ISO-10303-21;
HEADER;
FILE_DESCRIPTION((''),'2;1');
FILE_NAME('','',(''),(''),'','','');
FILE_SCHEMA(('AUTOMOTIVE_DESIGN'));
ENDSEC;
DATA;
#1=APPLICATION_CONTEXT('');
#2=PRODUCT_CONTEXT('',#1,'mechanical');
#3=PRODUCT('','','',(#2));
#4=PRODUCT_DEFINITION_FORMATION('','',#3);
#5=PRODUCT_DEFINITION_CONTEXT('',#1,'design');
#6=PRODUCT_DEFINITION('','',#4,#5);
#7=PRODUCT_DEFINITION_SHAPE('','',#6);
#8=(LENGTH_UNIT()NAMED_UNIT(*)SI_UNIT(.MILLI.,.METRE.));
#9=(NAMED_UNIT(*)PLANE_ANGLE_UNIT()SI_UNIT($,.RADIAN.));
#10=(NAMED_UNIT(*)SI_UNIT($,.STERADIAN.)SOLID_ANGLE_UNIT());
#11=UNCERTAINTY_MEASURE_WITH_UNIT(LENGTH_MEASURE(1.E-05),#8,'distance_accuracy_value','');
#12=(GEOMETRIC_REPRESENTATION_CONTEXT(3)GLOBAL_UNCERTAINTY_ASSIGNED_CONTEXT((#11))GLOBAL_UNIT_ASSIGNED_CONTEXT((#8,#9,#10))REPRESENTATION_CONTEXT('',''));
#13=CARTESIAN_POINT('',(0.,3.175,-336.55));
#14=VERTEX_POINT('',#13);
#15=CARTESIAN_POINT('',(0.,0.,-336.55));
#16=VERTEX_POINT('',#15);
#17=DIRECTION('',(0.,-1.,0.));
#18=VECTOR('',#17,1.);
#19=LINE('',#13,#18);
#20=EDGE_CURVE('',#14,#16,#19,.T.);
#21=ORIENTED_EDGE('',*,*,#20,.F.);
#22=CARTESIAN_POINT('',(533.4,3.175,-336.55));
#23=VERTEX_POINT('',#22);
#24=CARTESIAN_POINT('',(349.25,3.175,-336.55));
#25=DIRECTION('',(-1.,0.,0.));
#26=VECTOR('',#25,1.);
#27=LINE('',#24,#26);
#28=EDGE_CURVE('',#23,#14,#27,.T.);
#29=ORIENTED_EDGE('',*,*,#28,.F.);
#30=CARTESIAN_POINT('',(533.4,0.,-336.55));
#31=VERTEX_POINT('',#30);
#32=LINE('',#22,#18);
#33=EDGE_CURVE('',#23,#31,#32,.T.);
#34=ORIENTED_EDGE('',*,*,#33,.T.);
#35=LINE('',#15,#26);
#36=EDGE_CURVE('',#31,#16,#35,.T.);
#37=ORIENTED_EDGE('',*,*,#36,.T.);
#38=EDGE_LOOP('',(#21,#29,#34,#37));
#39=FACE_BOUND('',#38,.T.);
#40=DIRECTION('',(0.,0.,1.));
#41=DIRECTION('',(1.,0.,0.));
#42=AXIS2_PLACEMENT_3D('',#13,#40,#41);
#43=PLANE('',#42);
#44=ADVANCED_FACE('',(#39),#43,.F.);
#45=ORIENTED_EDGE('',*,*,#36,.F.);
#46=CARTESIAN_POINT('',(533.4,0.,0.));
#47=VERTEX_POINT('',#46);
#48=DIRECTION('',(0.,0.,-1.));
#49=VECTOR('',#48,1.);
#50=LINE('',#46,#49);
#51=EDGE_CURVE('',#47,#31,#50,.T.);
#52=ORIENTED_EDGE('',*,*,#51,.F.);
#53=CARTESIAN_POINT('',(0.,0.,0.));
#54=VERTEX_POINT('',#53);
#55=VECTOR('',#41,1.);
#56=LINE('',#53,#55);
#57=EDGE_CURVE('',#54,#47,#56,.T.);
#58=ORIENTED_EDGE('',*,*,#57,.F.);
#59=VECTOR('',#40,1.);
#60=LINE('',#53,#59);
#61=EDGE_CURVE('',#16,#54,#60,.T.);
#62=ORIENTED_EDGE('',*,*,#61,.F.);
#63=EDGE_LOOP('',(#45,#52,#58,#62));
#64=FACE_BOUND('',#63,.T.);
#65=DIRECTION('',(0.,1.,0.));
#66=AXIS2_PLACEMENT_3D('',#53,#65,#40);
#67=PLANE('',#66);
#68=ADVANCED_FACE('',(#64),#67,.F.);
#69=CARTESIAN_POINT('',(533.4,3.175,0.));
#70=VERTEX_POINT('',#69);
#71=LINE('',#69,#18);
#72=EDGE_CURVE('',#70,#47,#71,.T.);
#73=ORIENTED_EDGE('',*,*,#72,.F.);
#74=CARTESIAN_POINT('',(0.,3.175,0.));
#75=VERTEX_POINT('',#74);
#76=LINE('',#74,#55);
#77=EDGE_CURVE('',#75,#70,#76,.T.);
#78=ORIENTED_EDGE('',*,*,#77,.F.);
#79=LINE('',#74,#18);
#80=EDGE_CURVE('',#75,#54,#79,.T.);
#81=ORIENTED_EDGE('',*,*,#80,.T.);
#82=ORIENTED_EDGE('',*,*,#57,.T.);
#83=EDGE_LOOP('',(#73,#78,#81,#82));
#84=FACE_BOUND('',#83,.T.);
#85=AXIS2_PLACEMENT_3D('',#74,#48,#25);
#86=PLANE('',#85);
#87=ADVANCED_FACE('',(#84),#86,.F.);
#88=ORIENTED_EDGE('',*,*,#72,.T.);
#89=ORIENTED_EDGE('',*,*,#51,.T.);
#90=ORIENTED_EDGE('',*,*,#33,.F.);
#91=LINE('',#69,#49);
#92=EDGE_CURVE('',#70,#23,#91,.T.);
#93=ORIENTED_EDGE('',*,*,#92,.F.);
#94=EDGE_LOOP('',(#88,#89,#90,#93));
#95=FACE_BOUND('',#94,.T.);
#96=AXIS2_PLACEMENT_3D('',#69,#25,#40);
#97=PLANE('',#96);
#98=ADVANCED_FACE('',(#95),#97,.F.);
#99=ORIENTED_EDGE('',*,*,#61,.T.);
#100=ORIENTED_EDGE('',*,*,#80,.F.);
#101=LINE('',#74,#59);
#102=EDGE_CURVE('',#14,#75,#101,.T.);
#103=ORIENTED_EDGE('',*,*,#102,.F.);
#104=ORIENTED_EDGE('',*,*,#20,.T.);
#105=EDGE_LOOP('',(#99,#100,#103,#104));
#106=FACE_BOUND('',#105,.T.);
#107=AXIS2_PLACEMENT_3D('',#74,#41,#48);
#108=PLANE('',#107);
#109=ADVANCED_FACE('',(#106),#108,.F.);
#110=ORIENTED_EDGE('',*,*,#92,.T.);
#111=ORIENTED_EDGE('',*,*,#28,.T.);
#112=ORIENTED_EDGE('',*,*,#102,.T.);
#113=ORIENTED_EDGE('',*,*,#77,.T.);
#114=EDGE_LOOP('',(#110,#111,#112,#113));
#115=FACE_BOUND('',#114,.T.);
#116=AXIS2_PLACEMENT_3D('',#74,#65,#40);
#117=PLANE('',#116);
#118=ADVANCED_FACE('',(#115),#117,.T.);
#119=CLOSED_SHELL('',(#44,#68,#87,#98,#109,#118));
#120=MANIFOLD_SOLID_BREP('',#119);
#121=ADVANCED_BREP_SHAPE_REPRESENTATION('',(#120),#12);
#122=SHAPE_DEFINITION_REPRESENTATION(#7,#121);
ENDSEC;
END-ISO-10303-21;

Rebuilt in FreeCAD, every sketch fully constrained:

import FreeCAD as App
import Part
import Sketcher

V = App.Vector
Q = App.Units.Quantity

doc = App.newDocument("Part")
body = doc.addObject("PartDesign::Body", "Body")

sketch1 = doc.addObject("Sketcher::SketchObject", "Sketch")
body.addObject(sketch1)
sketch1.AttachmentSupport = (doc.XZ_Plane, [""])
sketch1.MapMode = "FlatFace"
sketch1.addGeometry([
    Part.LineSegment(V(533.4, -336.55, 0), V(349.25, -336.55, 0)),
    Part.LineSegment(V(349.25, -336.55, 0), V(349.25, -209.55, 0)),
    Part.LineSegment(V(349.25, -209.55, 0), V(184.15, -209.55, 0)),
    Part.LineSegment(V(184.15, -209.55, 0), V(184.15, -336.55, 0)),
    Part.LineSegment(V(184.15, -336.55, 0), V(0, -336.55, 0)),
    Part.LineSegment(V(0, -336.55, 0), V(0, 0, 0)),
    Part.LineSegment(V(0, 0, 0), V(533.4, 0, 0)),
    Part.LineSegment(V(533.4, 0, 0), V(533.4, -336.55, 0)),
], False)
sketch1.addConstraint([
    Sketcher.Constraint("Coincident", 0, 2, 1, 1),
    Sketcher.Constraint("Coincident", 1, 2, 2, 1),
    Sketcher.Constraint("Coincident", 2, 2, 3, 1),
    Sketcher.Constraint("Coincident", 3, 2, 4, 1),
    Sketcher.Constraint("Coincident", 4, 2, 5, 1),
    Sketcher.Constraint("Coincident", 5, 2, 6, 1),
    Sketcher.Constraint("Coincident", 6, 2, 7, 1),
    Sketcher.Constraint("Coincident", 7, 2, 0, 1),
    Sketcher.Constraint("Horizontal", 0),
    Sketcher.Constraint("Vertical", 1),
    Sketcher.Constraint("Horizontal", 2),
    Sketcher.Constraint("Vertical", 3),
    Sketcher.Constraint("Horizontal", 4),
    Sketcher.Constraint("Vertical", 5),
    Sketcher.Constraint("Horizontal", 6),
    Sketcher.Constraint("Vertical", 7),
    Sketcher.Constraint("Coincident", 5, 2, -1, 1),
    Sketcher.Constraint("Horizontal", 0, 2, 3, 2),
    Sketcher.Constraint("Equal", 0, 4),
    Sketcher.Constraint("DistanceX", 6, 1, 6, 2, Q("21 in")),
    Sketcher.Constraint("DistanceY", 1, 1, 1, 2, Q("5 in")),
    Sketcher.Constraint("DistanceX", 2, 2, 2, 1, Q("6.5 in")),
    Sketcher.Constraint("DistanceY", 5, 1, 5, 2, Q("13.25 in")),
])
pad1 = doc.addObject("PartDesign::Pad", "Pad")
body.addObject(pad1)
pad1.Profile = sketch1
pad1.Length = Q("0.125 in")
pad1.Reversed = True

sketch2 = doc.addObject("Sketcher::SketchObject", "Sketch001")
body.addObject(sketch2)
sketch2.AttachmentSupport = (doc.XZ_Plane, [""])
sketch2.MapMode = "FlatFace"
sketch2.AttachmentOffset = App.Placement(V(0, 0, -0.125 * 25.4), App.Rotation())
sketch2.addGeometry([
    Part.LineSegment(V(147.800873, -336.55, 0), V(147.800873, -172.016074, 0)),
    Part.LineSegment(V(147.800873, -172.016074, 0), V(409.748972, -172.016074, 0)),
    Part.LineSegment(V(409.748972, -172.016074, 0), V(409.748972, -336.55, 0)),
    Part.LineSegment(V(409.748972, -336.55, 0), V(147.800873, -336.55, 0)),
], False)
sketch2.addConstraint([
    Sketcher.Constraint("Coincident", 0, 2, 1, 1),
    Sketcher.Constraint("Coincident", 1, 2, 2, 1),
    Sketcher.Constraint("Coincident", 2, 2, 3, 1),
    Sketcher.Constraint("Coincident", 3, 2, 0, 1),
    Sketcher.Constraint("Vertical", 0),
    Sketcher.Constraint("Horizontal", 1),
    Sketcher.Constraint("Vertical", 2),
    Sketcher.Constraint("Horizontal", 3),
    Sketcher.Constraint("DistanceY", 2, 2, -1, 1, Q("13.25 in")),
    Sketcher.Constraint("DistanceX", 1, 1, 1, 2, Q("261.9481 mm")),
    Sketcher.Constraint("DistanceY", 0, 1, 0, 2, Q("164.533926 mm")),
    Sketcher.Constraint("DistanceX", -1, 1, 0, 2, Q("147.800873 mm")),
])
pad2 = doc.addObject("PartDesign::Pad", "Pad001")
body.addObject(pad2)
pad2.Profile = sketch2
pad2.Length = Q("0.125 in")

doc.recompute()
